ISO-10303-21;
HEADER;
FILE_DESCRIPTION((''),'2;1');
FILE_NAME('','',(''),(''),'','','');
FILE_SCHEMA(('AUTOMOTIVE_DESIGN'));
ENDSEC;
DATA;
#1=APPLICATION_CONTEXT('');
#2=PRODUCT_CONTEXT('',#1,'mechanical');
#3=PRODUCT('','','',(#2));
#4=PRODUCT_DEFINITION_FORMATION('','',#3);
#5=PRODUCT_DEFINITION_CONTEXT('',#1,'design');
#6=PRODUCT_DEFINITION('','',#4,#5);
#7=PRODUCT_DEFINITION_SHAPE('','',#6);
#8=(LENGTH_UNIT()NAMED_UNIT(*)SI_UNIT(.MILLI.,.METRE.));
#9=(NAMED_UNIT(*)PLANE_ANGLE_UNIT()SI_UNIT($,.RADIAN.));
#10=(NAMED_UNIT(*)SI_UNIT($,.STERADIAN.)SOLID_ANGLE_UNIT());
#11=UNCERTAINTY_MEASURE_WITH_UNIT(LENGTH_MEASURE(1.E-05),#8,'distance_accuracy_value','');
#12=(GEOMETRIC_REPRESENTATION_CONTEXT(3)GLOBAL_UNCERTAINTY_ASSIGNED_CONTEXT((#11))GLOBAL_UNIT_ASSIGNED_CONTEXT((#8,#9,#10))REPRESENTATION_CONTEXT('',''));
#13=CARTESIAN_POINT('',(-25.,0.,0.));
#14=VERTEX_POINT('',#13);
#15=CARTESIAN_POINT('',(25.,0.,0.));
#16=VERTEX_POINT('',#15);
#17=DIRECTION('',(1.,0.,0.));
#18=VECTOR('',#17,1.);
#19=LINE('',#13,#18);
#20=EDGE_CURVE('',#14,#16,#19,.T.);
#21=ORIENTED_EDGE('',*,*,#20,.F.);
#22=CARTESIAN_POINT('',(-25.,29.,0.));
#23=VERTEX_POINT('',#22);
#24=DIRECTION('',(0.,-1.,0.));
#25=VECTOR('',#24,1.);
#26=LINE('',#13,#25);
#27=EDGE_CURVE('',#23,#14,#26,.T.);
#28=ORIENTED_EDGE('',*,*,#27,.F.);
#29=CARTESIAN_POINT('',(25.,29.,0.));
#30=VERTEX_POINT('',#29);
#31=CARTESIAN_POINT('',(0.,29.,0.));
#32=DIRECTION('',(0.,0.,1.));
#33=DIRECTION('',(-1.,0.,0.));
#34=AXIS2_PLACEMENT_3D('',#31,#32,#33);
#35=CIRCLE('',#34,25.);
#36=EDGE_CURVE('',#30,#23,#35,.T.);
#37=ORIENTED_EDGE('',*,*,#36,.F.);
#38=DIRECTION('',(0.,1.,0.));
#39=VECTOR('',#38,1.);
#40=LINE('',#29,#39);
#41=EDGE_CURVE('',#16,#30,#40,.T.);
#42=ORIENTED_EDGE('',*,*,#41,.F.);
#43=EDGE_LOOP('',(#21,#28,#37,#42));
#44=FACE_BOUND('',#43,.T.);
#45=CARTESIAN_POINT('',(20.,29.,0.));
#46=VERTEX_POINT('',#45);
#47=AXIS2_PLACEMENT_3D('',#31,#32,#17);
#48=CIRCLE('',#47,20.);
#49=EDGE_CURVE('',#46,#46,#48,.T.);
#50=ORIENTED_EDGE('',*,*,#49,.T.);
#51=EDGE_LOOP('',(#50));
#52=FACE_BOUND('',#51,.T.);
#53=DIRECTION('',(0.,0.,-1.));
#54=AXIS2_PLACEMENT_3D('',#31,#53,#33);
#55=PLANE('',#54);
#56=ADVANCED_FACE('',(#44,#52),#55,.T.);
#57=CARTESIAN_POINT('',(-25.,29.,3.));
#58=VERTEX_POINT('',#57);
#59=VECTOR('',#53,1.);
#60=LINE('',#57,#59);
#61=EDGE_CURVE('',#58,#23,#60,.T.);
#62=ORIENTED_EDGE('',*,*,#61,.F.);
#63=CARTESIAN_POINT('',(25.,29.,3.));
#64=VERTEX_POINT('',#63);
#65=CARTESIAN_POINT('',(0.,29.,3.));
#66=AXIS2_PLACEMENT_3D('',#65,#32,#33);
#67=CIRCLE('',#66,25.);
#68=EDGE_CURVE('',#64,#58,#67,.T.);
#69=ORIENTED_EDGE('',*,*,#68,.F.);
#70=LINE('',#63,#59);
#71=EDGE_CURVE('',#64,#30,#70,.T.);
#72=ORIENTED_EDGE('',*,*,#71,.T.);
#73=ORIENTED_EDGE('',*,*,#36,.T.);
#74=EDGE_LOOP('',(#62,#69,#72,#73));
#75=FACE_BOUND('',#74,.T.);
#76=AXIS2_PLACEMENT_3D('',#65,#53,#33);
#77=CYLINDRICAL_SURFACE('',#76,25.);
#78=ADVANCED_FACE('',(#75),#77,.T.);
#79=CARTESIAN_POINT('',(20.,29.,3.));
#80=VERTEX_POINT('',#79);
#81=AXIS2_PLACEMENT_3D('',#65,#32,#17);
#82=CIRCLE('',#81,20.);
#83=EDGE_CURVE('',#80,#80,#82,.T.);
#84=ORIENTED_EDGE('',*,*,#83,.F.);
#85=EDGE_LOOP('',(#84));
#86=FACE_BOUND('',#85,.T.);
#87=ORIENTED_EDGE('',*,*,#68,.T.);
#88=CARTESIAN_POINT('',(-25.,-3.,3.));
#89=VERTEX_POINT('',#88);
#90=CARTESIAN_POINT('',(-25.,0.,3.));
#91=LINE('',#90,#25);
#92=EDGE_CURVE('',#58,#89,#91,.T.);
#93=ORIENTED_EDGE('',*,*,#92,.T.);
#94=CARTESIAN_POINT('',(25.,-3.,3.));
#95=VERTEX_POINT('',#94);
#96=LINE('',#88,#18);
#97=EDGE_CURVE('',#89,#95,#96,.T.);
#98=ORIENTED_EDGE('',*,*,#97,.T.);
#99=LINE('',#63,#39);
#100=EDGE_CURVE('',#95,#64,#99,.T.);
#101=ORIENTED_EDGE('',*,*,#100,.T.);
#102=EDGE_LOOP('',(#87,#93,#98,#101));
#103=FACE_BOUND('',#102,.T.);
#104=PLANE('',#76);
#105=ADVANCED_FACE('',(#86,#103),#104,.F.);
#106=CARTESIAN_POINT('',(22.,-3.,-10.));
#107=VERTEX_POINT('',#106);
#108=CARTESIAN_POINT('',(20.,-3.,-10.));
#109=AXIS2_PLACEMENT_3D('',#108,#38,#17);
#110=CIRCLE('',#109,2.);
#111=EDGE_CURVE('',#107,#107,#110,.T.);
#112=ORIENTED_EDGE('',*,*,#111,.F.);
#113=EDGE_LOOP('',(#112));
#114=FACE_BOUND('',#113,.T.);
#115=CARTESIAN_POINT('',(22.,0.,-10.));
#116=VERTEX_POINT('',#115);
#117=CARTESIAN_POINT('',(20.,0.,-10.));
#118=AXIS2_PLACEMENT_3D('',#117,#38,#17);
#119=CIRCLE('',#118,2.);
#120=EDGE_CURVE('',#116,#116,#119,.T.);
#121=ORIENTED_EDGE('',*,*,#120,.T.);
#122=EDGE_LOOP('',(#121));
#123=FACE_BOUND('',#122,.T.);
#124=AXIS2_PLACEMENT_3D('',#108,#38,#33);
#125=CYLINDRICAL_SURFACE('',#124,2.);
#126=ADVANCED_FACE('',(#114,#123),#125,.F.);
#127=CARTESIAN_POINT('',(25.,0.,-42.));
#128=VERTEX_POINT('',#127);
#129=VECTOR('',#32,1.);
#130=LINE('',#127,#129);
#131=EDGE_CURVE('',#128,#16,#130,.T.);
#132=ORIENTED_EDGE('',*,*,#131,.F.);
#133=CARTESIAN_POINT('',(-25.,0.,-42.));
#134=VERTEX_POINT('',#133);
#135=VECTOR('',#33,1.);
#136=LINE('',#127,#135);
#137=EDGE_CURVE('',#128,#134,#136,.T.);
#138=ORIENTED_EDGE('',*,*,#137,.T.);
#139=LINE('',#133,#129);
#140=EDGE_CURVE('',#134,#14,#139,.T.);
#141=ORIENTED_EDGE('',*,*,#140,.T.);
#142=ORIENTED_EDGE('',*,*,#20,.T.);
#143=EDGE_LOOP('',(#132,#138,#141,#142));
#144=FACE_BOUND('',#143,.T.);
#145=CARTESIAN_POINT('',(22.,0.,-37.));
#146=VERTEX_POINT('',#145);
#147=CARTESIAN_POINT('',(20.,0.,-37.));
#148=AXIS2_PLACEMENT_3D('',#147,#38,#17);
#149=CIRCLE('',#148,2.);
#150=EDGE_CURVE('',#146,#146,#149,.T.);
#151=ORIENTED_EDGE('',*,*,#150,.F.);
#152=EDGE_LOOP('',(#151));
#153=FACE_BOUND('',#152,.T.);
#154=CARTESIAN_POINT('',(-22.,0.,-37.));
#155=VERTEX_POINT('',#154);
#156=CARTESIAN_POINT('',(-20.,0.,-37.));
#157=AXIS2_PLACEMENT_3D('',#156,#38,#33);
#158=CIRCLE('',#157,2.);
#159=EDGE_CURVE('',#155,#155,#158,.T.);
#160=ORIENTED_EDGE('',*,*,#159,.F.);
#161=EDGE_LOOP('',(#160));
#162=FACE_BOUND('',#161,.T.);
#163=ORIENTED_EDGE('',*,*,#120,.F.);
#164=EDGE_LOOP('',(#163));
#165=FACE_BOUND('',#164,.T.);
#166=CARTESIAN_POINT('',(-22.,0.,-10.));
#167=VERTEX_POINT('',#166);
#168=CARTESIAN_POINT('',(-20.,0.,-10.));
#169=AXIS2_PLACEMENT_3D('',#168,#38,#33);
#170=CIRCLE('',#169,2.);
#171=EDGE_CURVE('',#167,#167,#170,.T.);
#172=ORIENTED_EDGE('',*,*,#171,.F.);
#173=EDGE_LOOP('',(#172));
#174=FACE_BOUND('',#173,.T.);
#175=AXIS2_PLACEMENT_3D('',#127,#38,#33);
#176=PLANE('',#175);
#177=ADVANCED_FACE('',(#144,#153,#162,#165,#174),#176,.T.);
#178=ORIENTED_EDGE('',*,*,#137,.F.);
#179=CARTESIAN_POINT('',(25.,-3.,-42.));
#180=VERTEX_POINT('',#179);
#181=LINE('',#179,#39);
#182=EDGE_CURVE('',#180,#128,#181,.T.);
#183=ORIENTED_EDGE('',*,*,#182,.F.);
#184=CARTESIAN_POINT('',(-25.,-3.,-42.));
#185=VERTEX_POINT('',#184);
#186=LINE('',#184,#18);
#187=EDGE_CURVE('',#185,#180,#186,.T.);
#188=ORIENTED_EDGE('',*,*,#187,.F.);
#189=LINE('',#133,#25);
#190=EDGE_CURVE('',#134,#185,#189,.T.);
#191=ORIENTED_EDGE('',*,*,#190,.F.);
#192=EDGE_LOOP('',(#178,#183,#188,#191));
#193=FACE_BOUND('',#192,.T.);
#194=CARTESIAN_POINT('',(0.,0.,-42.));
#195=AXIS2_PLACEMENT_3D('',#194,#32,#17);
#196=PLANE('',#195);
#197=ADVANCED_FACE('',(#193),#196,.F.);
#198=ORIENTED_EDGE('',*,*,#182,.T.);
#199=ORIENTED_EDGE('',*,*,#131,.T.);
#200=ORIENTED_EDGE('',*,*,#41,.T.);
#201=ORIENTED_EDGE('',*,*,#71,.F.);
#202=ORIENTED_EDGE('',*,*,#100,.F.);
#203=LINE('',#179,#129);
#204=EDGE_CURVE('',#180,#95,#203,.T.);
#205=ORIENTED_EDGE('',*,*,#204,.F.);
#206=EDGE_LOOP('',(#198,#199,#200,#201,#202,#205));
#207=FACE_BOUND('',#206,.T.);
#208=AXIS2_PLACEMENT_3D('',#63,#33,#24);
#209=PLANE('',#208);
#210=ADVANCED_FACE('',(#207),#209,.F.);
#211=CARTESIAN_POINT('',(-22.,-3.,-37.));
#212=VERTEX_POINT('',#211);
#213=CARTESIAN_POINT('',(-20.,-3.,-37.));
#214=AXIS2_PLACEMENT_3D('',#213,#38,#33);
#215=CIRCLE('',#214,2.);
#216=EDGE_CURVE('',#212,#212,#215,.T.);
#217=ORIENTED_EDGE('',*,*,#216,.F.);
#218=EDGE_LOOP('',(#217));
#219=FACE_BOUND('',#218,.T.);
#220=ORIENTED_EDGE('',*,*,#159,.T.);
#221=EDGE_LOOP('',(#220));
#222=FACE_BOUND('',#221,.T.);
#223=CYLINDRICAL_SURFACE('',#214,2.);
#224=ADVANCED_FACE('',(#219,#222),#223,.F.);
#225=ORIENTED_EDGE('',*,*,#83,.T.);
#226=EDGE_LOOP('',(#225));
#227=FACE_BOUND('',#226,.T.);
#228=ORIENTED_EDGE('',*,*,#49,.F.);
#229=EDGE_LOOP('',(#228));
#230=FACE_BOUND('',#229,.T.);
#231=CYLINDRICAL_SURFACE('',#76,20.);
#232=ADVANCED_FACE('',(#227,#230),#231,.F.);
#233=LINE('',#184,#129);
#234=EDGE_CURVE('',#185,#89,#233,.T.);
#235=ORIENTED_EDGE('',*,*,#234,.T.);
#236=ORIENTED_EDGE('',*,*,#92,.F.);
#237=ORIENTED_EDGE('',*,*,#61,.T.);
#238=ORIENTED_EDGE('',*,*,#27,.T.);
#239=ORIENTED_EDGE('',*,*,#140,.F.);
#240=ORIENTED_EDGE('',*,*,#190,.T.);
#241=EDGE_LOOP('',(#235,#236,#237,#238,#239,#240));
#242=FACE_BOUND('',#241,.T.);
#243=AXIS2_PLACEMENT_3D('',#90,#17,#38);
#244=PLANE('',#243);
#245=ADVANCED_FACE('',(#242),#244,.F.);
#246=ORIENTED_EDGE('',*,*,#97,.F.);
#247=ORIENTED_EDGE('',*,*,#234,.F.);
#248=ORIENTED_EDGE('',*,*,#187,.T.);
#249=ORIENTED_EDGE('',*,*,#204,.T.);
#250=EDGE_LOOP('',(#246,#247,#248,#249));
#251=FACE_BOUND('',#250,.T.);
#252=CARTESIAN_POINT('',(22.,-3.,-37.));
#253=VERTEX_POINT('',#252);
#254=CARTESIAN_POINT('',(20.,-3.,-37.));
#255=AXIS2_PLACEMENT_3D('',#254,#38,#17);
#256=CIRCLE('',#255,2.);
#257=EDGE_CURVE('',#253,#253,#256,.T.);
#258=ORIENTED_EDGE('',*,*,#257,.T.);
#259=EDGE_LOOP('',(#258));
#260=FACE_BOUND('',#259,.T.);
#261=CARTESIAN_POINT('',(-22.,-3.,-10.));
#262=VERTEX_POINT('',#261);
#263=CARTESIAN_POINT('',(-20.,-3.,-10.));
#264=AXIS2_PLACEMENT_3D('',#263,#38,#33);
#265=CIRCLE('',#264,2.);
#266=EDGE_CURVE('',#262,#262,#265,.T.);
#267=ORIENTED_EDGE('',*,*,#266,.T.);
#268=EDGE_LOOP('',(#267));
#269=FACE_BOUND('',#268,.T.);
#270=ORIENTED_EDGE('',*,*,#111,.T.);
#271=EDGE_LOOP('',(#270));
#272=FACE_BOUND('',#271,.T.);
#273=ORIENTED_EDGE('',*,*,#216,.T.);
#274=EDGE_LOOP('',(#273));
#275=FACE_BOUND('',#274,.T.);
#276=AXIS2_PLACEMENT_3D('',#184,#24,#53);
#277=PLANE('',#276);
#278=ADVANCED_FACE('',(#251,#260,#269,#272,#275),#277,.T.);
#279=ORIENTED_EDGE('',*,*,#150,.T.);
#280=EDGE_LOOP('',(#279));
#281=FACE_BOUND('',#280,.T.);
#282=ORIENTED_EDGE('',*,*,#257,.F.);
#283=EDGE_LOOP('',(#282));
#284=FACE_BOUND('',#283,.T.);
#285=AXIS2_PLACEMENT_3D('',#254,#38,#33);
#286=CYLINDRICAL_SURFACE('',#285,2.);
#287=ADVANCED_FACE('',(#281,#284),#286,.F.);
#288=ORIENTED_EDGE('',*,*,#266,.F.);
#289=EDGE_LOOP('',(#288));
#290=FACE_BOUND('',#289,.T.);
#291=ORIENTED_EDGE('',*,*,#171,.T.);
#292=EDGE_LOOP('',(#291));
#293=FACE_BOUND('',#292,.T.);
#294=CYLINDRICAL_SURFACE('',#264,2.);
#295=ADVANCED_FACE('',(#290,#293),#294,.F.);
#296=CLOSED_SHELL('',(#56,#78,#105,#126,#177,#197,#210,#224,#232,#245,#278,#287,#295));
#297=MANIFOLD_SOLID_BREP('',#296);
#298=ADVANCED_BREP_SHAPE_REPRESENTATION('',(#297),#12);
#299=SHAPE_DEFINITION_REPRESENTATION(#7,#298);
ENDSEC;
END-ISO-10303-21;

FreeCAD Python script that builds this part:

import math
import FreeCAD as App
import Part
import Sketcher


def add_polygon(sketch, points):
    """Adds a closed chain of lines whose ends are joined by coincident constraints."""
    first, n = sketch.GeometryCount, len(points)
    for a, b in zip(points, points[1:] + points[:1]):
        sketch.addGeometry(Part.LineSegment(App.Vector(*a, 0), App.Vector(*b, 0)), False)
    for i in range(n):
        sketch.addConstraint(Sketcher.Constraint("Coincident", first + i, 2, first + (i + 1) % n, 1))

doc = App.newDocument("Part")
body = doc.addObject("PartDesign::Body", "Body")

sketch1 = body.newObject("Sketcher::SketchObject", "Sketch")
sketch1.AttachmentSupport = (doc.getObject("XY_Plane"), [""])
sketch1.MapMode = "FlatFace"
sketch1.addGeometry([
    Part.LineSegment(App.Vector(-25, 0, 0), App.Vector(25, 0, 0)),
    Part.LineSegment(App.Vector(25, 0, 0), App.Vector(25, 29, 0)),
    Part.ArcOfCircle(Part.Circle(App.Vector(0, 29, 0), App.Vector(0, 0, 1), 25), math.radians(0), math.radians(180)),
    Part.LineSegment(App.Vector(-25, 29, 0), App.Vector(-25, 0, 0)),
    Part.Circle(App.Vector(0, 29, 0), App.Vector(0, 0, 1), 20),
], False)
sketch1.addConstraint([
    Sketcher.Constraint("Coincident", 0, 2, 1, 1),
    Sketcher.Constraint("Tangent", 1, 2, 2, 1),
    Sketcher.Constraint("Tangent", 2, 2, 3, 1),
    Sketcher.Constraint("Coincident", 3, 2, 0, 1),
    Sketcher.Constraint("Horizontal", 0),
    Sketcher.Constraint("Vertical", 1),
    Sketcher.Constraint("Vertical", 3),
    Sketcher.Constraint("Coincident", 4, 3, 2, 3),
    Sketcher.Constraint("Symmetric", 0, 2, 3, 2, -1, 1),
    Sketcher.Constraint("Diameter", 4, 40.0),
    Sketcher.Constraint("Radius", 2, 25.0),
    Sketcher.Constraint("DistanceY", 1, 1, 1, 2, 29.0),
])
pad1 = body.newObject("PartDesign::Pad", "Pad")
pad1.Profile = sketch1
pad1.Length = 3

sketch2 = body.newObject("Sketcher::SketchObject", "Sketch001")
sketch2.AttachmentSupport = (doc.getObject("XY_Plane"), [""])
sketch2.MapMode = "FlatFace"
sketch2.AttachmentOffset = App.Placement(App.Vector(0, 0, 3), App.Rotation())
add_polygon(sketch2, [(-25, 0), (-25, -3), (25, -3), (25, 0)])
sketch2.addConstraint([
    Sketcher.Constraint("Vertical", 0),
    Sketcher.Constraint("Horizontal", 1),
    Sketcher.Constraint("Vertical", 2),
    Sketcher.Constraint("Horizontal", 3),
    Sketcher.Constraint("Symmetric", 2, 2, 3, 2, -1, 1),
    Sketcher.Constraint("DistanceX", 1, 1, 1, 2, 50.0),
    Sketcher.Constraint("DistanceY", 0, 2, 0, 1, 3.0),
])
pad2 = body.newObject("PartDesign::Pad", "Pad001")
pad2.Profile = sketch2
pad2.Length = 45
pad2.Reversed = True

sketch3 = body.newObject("Sketcher::SketchObject", "Sketch002")
sketch3.AttachmentSupport = (doc.getObject("XZ_Plane"), [""])
sketch3.MapMode = "FlatFace"
sketch3.addGeometry([
    Part.Circle(App.Vector(-20, -37, 0), App.Vector(0, 0, 1), 2),
    Part.Circle(App.Vector(-20, -10, 0), App.Vector(0, 0, 1), 2),
    Part.Circle(App.Vector(20, -10, 0), App.Vector(0, 0, 1), 2),
    Part.Circle(App.Vector(20, -37, 0), App.Vector(0, 0, 1), 2),
], False)
sketch3.addConstraint([
    Sketcher.Constraint("Equal", 0, 1),
    Sketcher.Constraint("Equal", 1, 2),
    Sketcher.Constraint("Equal", 2, 3),
    Sketcher.Constraint("Symmetric", 1, 3, 2, 3, -2),
    Sketcher.Constraint("Symmetric", 0, 3, 3, 3, -2),
    Sketcher.Constraint("Vertical", 0, 3, 1, 3),
    Sketcher.Constraint("Diameter", 0, 4.0),
    Sketcher.Constraint("DistanceX", 0, 3, -1, 1, 20.0),
    Sketcher.Constraint("DistanceY", 0, 3, -1, 1, 37.0),
    Sketcher.Constraint("DistanceY", 1, 3, -1, 1, 10.0),
])
pocket1 = body.newObject("PartDesign::Pocket", "Pocket")
pocket1.Profile = sketch3
pocket1.Type = "ThroughAll"
pocket1.Reversed = True

doc.recompute()
